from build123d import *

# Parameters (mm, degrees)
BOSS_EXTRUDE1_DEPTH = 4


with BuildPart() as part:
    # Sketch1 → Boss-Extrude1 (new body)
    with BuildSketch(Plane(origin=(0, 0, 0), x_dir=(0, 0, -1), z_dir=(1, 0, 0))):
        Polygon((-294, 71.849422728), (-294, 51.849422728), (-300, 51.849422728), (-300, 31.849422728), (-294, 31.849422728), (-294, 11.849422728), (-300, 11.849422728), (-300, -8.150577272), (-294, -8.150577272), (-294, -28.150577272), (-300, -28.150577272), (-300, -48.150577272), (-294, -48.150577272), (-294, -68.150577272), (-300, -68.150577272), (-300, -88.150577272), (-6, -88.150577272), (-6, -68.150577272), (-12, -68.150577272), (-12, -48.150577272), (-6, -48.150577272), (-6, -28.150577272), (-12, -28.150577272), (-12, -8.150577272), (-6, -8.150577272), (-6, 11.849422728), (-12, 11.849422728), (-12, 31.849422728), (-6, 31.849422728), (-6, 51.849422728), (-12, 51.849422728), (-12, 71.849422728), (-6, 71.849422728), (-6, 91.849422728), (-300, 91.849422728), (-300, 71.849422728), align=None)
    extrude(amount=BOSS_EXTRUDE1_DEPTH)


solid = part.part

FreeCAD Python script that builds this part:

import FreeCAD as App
import Part
import Sketcher

V = App.Vector
Q = App.Units.Quantity

doc = App.newDocument("Part")
body = doc.addObject("PartDesign::Body", "Body")

sketch1 = doc.addObject("Sketcher::SketchObject", "Sketch")
body.addObject(sketch1)
sketch1.AttachmentSupport = (doc.YZ_Plane, [""])
sketch1.MapMode = "FlatFace"
sketch1.addGeometry(Part.LineSegment(V(72, 294, 0), V(52, 294, 0)), False)
sketch1.addGeometry(Part.LineSegment(V(52, 294, 0), V(52, 300, 0)), False)
sketch1.addGeometry(Part.LineSegment(V(52, 300, 0), V(32, 300, 0)), False)
sketch1.addGeometry(Part.LineSegment(V(32, 300, 0), V(32, 294, 0)), False)
sketch1.addGeometry(Part.LineSegment(V(32, 294, 0), V(12, 294, 0)), False)
sketch1.addGeometry(Part.LineSegment(V(12, 294, 0), V(12, 300, 0)), False)
sketch1.addGeometry(Part.LineSegment(V(12, 300, 0), V(-8, 300, 0)), False)
sketch1.addGeometry(Part.LineSegment(V(-8, 300, 0), V(-8, 294, 0)), False)
sketch1.addGeometry(Part.LineSegment(V(-8, 294, 0), V(-28, 294, 0)), False)
sketch1.addGeometry(Part.LineSegment(V(-28, 294, 0), V(-28, 300, 0)), False)
sketch1.addGeometry(Part.LineSegment(V(-28, 300, 0), V(-48, 300, 0)), False)
sketch1.addGeometry(Part.LineSegment(V(-48, 300, 0), V(-48, 294, 0)), False)
sketch1.addGeometry(Part.LineSegment(V(-48, 294, 0), V(-68, 294, 0)), False)
sketch1.addGeometry(Part.LineSegment(V(-68, 294, 0), V(-68, 300, 0)), False)
sketch1.addGeometry(Part.LineSegment(V(-68, 300, 0), V(-88, 300, 0)), False)
sketch1.addGeometry(Part.LineSegment(V(-88, 300, 0), V(-88, 6, 0)), False)
sketch1.addGeometry(Part.LineSegment(V(-88, 6, 0), V(-68, 6, 0)), False)
sketch1.addGeometry(Part.LineSegment(V(-68, 6, 0), V(-68, 12, 0)), False)
sketch1.addGeometry(Part.LineSegment(V(-68, 12, 0), V(-48, 12, 0)), False)
sketch1.addGeometry(Part.LineSegment(V(-48, 12, 0), V(-48, 6, 0)), False)
sketch1.addGeometry(Part.LineSegment(V(-48, 6, 0), V(-28, 6, 0)), False)
sketch1.addGeometry(Part.LineSegment(V(-28, 6, 0), V(-28, 12, 0)), False)
sketch1.addGeometry(Part.LineSegment(V(-28, 12, 0), V(-8, 12, 0)), False)
sketch1.addGeometry(Part.LineSegment(V(-8, 12, 0), V(-8, 6, 0)), False)
sketch1.addGeometry(Part.LineSegment(V(-8, 6, 0), V(12, 6, 0)), False)
sketch1.addGeometry(Part.LineSegment(V(12, 6, 0), V(12, 12, 0)), False)
sketch1.addGeometry(Part.LineSegment(V(12, 12, 0), V(32, 12, 0)), False)
sketch1.addGeometry(Part.LineSegment(V(32, 12, 0), V(32, 6, 0)), False)
sketch1.addGeometry(Part.LineSegment(V(32, 6, 0), V(52, 6, 0)), False)
sketch1.addGeometry(Part.LineSegment(V(52, 6, 0), V(52, 12, 0)), False)
sketch1.addGeometry(Part.LineSegment(V(52, 12, 0), V(72, 12, 0)), False)
sketch1.addGeometry(Part.LineSegment(V(72, 12, 0), V(72, 6, 0)), False)
sketch1.addGeometry(Part.LineSegment(V(72, 6, 0), V(92, 6, 0)), False)
sketch1.addGeometry(Part.LineSegment(V(92, 6, 0), V(92, 300, 0)), False)
sketch1.addGeometry(Part.LineSegment(V(92, 300, 0), V(72, 300, 0)), False)
sketch1.addGeometry(Part.LineSegment(V(72, 300, 0), V(72, 294, 0)), False)
sketch1.addConstraint(Sketcher.Constraint("Coincident", 0, 2, 1, 1))
sketch1.addConstraint(Sketcher.Constraint("Coincident", 1, 2, 2, 1))
sketch1.addConstraint(Sketcher.Constraint("Coincident", 2, 2, 3, 1))
sketch1.addConstraint(Sketcher.Constraint("Coincident", 3, 2, 4, 1))
sketch1.addConstraint(Sketcher.Constraint("Coincident", 4, 2, 5, 1))
sketch1.addConstraint(Sketcher.Constraint("Coincident", 5, 2, 6, 1))
sketch1.addConstraint(Sketcher.Constraint("Coincident", 6, 2, 7, 1))
sketch1.addConstraint(Sketcher.Constraint("Coincident", 7, 2, 8, 1))
sketch1.addConstraint(Sketcher.Constraint("Coincident", 8, 2, 9, 1))
sketch1.addConstraint(Sketcher.Constraint("Coincident", 9, 2, 10, 1))
sketch1.addConstraint(Sketcher.Constraint("Coincident", 10, 2, 11, 1))
sketch1.addConstraint(Sketcher.Constraint("Coincident", 11, 2, 12, 1))
sketch1.addConstraint(Sketcher.Constraint("Coincident", 12, 2, 13, 1))
sketch1.addConstraint(Sketcher.Constraint("Coincident", 13, 2, 14, 1))
sketch1.addConstraint(Sketcher.Constraint("Coincident", 14, 2, 15, 1))
sketch1.addConstraint(Sketcher.Constraint("Coincident", 15, 2, 16, 1))
sketch1.addConstraint(Sketcher.Constraint("Coincident", 16, 2, 17, 1))
sketch1.addConstraint(Sketcher.Constraint("Coincident", 17, 2, 18, 1))
sketch1.addConstraint(Sketcher.Constraint("Coincident", 18, 2, 19, 1))
sketch1.addConstraint(Sketcher.Constraint("Coincident", 19, 2, 20, 1))
sketch1.addConstraint(Sketcher.Constraint("Coincident", 20, 2, 21, 1))
sketch1.addConstraint(Sketcher.Constraint("Coincident", 21, 2, 22, 1))
sketch1.addConstraint(Sketcher.Constraint("Coincident", 22, 2, 23, 1))
sketch1.addConstraint(Sketcher.Constraint("Coincident", 23, 2, 24, 1))
sketch1.addConstraint(Sketcher.Constraint("Coincident", 24, 2, 25, 1))
sketch1.addConstraint(Sketcher.Constraint("Coincident", 25, 2, 26, 1))
sketch1.addConstraint(Sketcher.Constraint("Coincident", 26, 2, 27, 1))
sketch1.addConstraint(Sketcher.Constraint("Coincident", 27, 2, 28, 1))
sketch1.addConstraint(Sketcher.Constraint("Coincident", 28, 2, 29, 1))
sketch1.addConstraint(Sketcher.Constraint("Coincident", 29, 2, 30, 1))
sketch1.addConstraint(Sketcher.Constraint("Coincident", 30, 2, 31, 1))
sketch1.addConstraint(Sketcher.Constraint("Coincident", 31, 2, 32, 1))
sketch1.addConstraint(Sketcher.Constraint("Coincident", 32, 2, 33, 1))
sketch1.addConstraint(Sketcher.Constraint("Coincident", 33, 2, 34, 1))
sketch1.addConstraint(Sketcher.Constraint("Coincident", 34, 2, 35, 1))
sketch1.addConstraint(Sketcher.Constraint("Coincident", 35, 2, 0, 1))
sketch1.addConstraint(Sketcher.Constraint("Horizontal", 0))
sketch1.addConstraint(Sketcher.Constraint("Vertical", 1))
sketch1.addConstraint(Sketcher.Constraint("Horizontal", 2))
sketch1.addConstraint(Sketcher.Constraint("Vertical", 3))
sketch1.addConstraint(Sketcher.Constraint("Horizontal", 4))
sketch1.addConstraint(Sketcher.Constraint("Vertical", 5))
sketch1.addConstraint(Sketcher.Constraint("Horizontal", 6))
sketch1.addConstraint(Sketcher.Constraint("Vertical", 7))
sketch1.addConstraint(Sketcher.Constraint("Horizontal", 8))
sketch1.addConstraint(Sketcher.Constraint("Vertical", 9))
sketch1.addConstraint(Sketcher.Constraint("Horizontal", 10))
sketch1.addConstraint(Sketcher.Constraint("Vertical", 11))
sketch1.addConstraint(Sketcher.Constraint("Horizontal", 12))
sketch1.addConstraint(Sketcher.Constraint("Vertical", 13))
sketch1.addConstraint(Sketcher.Constraint("Horizontal", 14))
sketch1.addConstraint(Sketcher.Constraint("Vertical", 15))
sketch1.addConstraint(Sketcher.Constraint("Horizontal", 16))
sketch1.addConstraint(Sketcher.Constraint("Vertical", 17))
sketch1.addConstraint(Sketcher.Constraint("Horizontal", 18))
sketch1.addConstraint(Sketcher.Constraint("Vertical", 19))
sketch1.addConstraint(Sketcher.Constraint("Horizontal", 20))
sketch1.addConstraint(Sketcher.Constraint("Vertical", 21))
sketch1.addConstraint(Sketcher.Constraint("Horizontal", 22))
sketch1.addConstraint(Sketcher.Constraint("Vertical", 23))
sketch1.addConstraint(Sketcher.Constraint("Horizontal", 24))
sketch1.addConstraint(Sketcher.Constraint("Vertical", 25))
sketch1.addConstraint(Sketcher.Constraint("Horizontal", 26))
sketch1.addConstraint(Sketcher.Constraint("Vertical", 27))
sketch1.addConstraint(Sketcher.Constraint("Horizontal", 28))
sketch1.addConstraint(Sketcher.Constraint("Vertical", 29))
sketch1.addConstraint(Sketcher.Constraint("Horizontal", 30))
sketch1.addConstraint(Sketcher.Constraint("Vertical", 31))
sketch1.addConstraint(Sketcher.Constraint("Horizontal", 32))
sketch1.addConstraint(Sketcher.Constraint("Vertical", 33))
sketch1.addConstraint(Sketcher.Constraint("Horizontal", 34))
sketch1.addConstraint(Sketcher.Constraint("Vertical", 35))
sketch1.addConstraint(Sketcher.Constraint("Horizontal", 0, 2, 3, 2))
sketch1.addConstraint(Sketcher.Constraint("Horizontal", 2, 2, 5, 2))
sketch1.addConstraint(Sketcher.Constraint("Horizontal", 4, 2, 7, 2))
sketch1.addConstraint(Sketcher.Constraint("Horizontal", 6, 2, 9, 2))
sketch1.addConstraint(Sketcher.Constraint("Horizontal", 8, 2, 11, 2))
sketch1.addConstraint(Sketcher.Constraint("Horizontal", 10, 2, 13, 2))
sketch1.addConstraint(Sketcher.Constraint("Horizontal", 16, 2, 19, 2))
sketch1.addConstraint(Sketcher.Constraint("Horizontal", 18, 2, 21, 2))
sketch1.addConstraint(Sketcher.Constraint("Horizontal", 20, 2, 23, 2))
sketch1.addConstraint(Sketcher.Constraint("Horizontal", 22, 2, 25, 2))
sketch1.addConstraint(Sketcher.Constraint("Horizontal", 24, 2, 27, 2))
sketch1.addConstraint(Sketcher.Constraint("Horizontal", 26, 2, 29, 2))
sketch1.addConstraint(Sketcher.Constraint("Horizontal", 28, 2, 31, 2))
sketch1.addConstraint(Sketcher.Constraint("Horizontal", 14, 2, 33, 2))
sketch1.addConstraint(Sketcher.Constraint("Vertical", 13, 2, 16, 2))
sketch1.addConstraint(Sketcher.Constraint("Vertical", 11, 2, 18, 2))
sketch1.addConstraint(Sketcher.Constraint("Vertical", 9, 2, 20, 2))
sketch1.addConstraint(Sketcher.Constraint("Vertical", 7, 2, 22, 2))
sketch1.addConstraint(Sketcher.Constraint("Vertical", 5, 2, 24, 2))
sketch1.addConstraint(Sketcher.Constraint("Vertical", 3, 2, 26, 2))
sketch1.addConstraint(Sketcher.Constraint("Vertical", 1, 2, 28, 2))
sketch1.addConstraint(Sketcher.Constraint("Vertical", 31, 2, 34, 2))
sketch1.addConstraint(Sketcher.Constraint("Equal", 0, 2))
sketch1.addConstraint(Sketcher.Constraint("Equal", 2, 4))
sketch1.addConstraint(Sketcher.Constraint("Equal", 4, 6))
sketch1.addConstraint(Sketcher.Constraint("Equal", 6, 8))
sketch1.addConstraint(Sketcher.Constraint("Equal", 8, 10))
sketch1.addConstraint(Sketcher.Constraint("Equal", 10, 12))
sketch1.addConstraint(Sketcher.Constraint("Equal", 12, 14))
sketch1.addConstraint(Sketcher.Constraint("Equal", 30, 32))
sketch1.addConstraint(Sketcher.Constraint("Equal", 13, 17))
sketch1.addConstraint(Sketcher.Constraint("DistanceX", 0, 2, 0, 1, Q("20 mm")))
sketch1.addConstraint(Sketcher.Constraint("DistanceY", 1, 1, 1, 2, Q("6 mm")))
sketch1.addConstraint(Sketcher.Constraint("DistanceY", 15, 2, 15, 1, Q("294 mm")))
sketch1.addConstraint(Sketcher.Constraint("DistanceY", -1, 1, 0, 2, Q("294 mm")))
sketch1.addConstraint(Sketcher.Constraint("DistanceX", -1, 1, 0, 2, Q("51.849423 mm")))
pad1 = doc.addObject("PartDesign::Pad", "Pad")
body.addObject(pad1)
pad1.Profile = sketch1
pad1.Length = 4

doc.recompute()
